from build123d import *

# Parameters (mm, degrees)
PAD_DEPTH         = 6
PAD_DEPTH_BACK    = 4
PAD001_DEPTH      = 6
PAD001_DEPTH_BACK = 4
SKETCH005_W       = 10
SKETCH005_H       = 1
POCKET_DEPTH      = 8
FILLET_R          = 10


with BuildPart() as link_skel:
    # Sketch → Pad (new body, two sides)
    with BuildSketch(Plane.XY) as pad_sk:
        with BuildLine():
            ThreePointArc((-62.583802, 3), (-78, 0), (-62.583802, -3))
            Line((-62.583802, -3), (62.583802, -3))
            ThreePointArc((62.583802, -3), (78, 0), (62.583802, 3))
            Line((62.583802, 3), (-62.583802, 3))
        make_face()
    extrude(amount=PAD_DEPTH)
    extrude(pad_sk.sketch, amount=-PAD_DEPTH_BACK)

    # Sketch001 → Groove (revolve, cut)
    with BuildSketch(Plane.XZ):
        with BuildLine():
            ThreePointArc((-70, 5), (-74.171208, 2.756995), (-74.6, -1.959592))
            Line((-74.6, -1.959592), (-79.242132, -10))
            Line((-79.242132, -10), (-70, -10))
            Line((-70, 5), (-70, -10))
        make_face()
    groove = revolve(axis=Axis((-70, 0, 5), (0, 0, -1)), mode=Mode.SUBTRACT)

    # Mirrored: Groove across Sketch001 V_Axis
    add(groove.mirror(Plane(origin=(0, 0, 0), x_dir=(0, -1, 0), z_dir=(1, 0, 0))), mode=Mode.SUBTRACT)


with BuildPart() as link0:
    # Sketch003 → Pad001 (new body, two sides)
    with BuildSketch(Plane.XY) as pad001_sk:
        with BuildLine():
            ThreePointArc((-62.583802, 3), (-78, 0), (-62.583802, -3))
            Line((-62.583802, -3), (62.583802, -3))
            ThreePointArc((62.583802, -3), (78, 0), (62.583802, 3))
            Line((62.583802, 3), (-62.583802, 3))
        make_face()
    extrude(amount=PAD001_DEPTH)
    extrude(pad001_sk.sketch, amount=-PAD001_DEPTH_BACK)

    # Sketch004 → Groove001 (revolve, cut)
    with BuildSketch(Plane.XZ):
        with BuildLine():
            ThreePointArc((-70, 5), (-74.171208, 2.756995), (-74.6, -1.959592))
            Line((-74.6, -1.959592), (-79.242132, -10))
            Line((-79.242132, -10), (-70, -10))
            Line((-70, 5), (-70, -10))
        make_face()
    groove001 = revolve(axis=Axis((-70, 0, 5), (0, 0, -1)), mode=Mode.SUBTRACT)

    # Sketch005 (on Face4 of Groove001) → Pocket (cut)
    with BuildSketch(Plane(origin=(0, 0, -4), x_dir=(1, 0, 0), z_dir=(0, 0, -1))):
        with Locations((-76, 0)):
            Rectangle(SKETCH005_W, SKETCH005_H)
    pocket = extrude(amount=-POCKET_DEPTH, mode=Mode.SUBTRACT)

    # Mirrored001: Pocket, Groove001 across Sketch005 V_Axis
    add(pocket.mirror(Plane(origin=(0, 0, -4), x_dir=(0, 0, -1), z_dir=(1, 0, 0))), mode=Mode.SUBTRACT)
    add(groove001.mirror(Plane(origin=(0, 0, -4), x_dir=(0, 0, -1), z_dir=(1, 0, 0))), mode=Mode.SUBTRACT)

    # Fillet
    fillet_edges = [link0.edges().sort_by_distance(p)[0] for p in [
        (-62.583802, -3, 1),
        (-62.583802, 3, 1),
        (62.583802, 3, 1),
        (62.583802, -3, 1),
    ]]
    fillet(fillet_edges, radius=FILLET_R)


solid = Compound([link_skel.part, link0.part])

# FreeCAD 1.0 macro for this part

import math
import FreeCAD as App
import Part
import Sketcher

V = App.Vector
Q = App.Units.Quantity


def edges_at(feature, points):
    """Names of the edges that pass closest to the given points."""
    edges = feature.Shape.Edges
    near = lambda p: min(range(len(edges)), key=lambda i: edges[i].distToShape(Part.Vertex(*p))[0])
    return sorted({f"Edge{near(p) + 1}" for p in points})


def add_polygon(sketch, points):
    """Adds a closed chain of lines whose ends are joined by coincident constraints."""
    first, n = sketch.GeometryCount, len(points)
    for a, b in zip(points, points[1:] + points[:1]):
        sketch.addGeometry(Part.LineSegment(App.Vector(*a, 0), App.Vector(*b, 0)), False)
    for i in range(n):
        sketch.addConstraint(Sketcher.Constraint("Coincident", first + i, 2, first + (i + 1) % n, 1))

doc = App.newDocument("Part")
params = doc.addObject("Spreadsheet::Sheet", "Params")
for row, (alias, value) in enumerate([
    ("sketch1_radius", "8 mm"),
    ("pad1_length", "6 mm"),
    ("pad1_length2", "4 mm"),
    ("sketch2_radius", "5 mm"),
    ("sketch2_height", "15 mm"),
    ("groove_angle", "360 deg"),
    ("sketch3_radius", "8 mm"),
    ("pad2_length", "6 mm"),
    ("pad2_length2", "4 mm"),
    ("sketch4_radius", "5 mm"),
    ("sketch4_height", "15 mm"),
    ("groove2_angle", "360 deg"),
    ("sketch5_width", "10 mm"),
    ("sketch5_height", "1 mm"),
    ("pocket1_length", "8 mm"),
    ("fillet_radius", "10 mm"),
], start=1):
    params.set(f"A{row}", alias)
    params.set(f"B{row}", "=" + value)
    params.setAlias(f"B{row}", alias)

body = doc.addObject("PartDesign::Body", "Body")

# Sketch on XY plane
sketch1 = body.newObject("Sketcher::SketchObject", "Sketch")
sketch1.AttachmentSupport = (doc.getObject("XY_Plane"), [""])
sketch1.MapMode = "FlatFace"
sketch1.addGeometry(Part.ArcOfCircle(Part.Circle(V(-70, 0, 0), V(0, 0, 1), 8), math.radians(22), math.radians(338)), False)
sketch1.addGeometry(Part.LineSegment(V(-63, -3, 0), V(63, -3, 0)), False)
sketch1.addGeometry(Part.ArcOfCircle(Part.Circle(V(70, 0, 0), V(0, 0, 1), 8), math.radians(-158), math.radians(158)), False)
sketch1.addGeometry(Part.LineSegment(V(63, 3, 0), V(-63, 3, 0)), False)
sketch1.addConstraint(Sketcher.Constraint("Coincident", 0, 2, 1, 1))
sketch1.addConstraint(Sketcher.Constraint("Coincident", 1, 2, 2, 1))
sketch1.addConstraint(Sketcher.Constraint("Coincident", 2, 2, 3, 1))
sketch1.addConstraint(Sketcher.Constraint("Coincident", 3, 2, 0, 1))
sketch1.addConstraint(Sketcher.Constraint("Horizontal", 1))
sketch1.addConstraint(Sketcher.Constraint("Horizontal", 3))
sketch1.addConstraint(Sketcher.Constraint("Equal", 0, 2))
sketch1.addConstraint(Sketcher.Constraint("Symmetric", 0, 3, 2, 3, -1, 1))
sketch1.addConstraint(Sketcher.Constraint("Symmetric", 1, 2, 2, 2, -1))
sketch1.addConstraint(Sketcher.Constraint("Radius", 0, 8.0))
sketch1.addConstraint(Sketcher.Constraint("DistanceX", 0, 3, -1, 1, 70.0))
sketch1.addConstraint(Sketcher.Constraint("DistanceY", 0, 2, -1, 1, 3.0))
sketch1.setExpression("Constraints[9]", "Params.sketch1_radius")
pad1 = body.newObject("PartDesign::Pad", "Pad")
pad1.Profile = sketch1
pad1.Type = "TwoLengths"
pad1.setExpression("Length", "Params.pad1_length")
pad1.setExpression("Length2", "Params.pad1_length2")

# Sketch on XZ plane
sketch2 = body.newObject("Sketcher::SketchObject", "Sketch001")
sketch2.AttachmentSupport = (doc.getObject("XZ_Plane"), [""])
sketch2.MapMode = "FlatFace"
sketch2.addGeometry(Part.ArcOfCircle(Part.Circle(V(-70, 0, 0), V(0, 0, 1), 5), math.radians(90), math.radians(203)), False)
sketch2.addGeometry(Part.LineSegment(V(-75, -2, 0), V(-79, -10, 0)), False)
sketch2.addGeometry(Part.LineSegment(V(-79, -10, 0), V(-70, -10, 0)), False)
sketch2.addGeometry(Part.LineSegment(V(-70, -10, 0), V(-70, 5, 0)), False)
sketch2.addGeometry(Part.LineSegment(V(-70, 5, 0), V(-70, -10, 0)), True)  # axis
sketch2.addConstraint(Sketcher.Constraint("Coincident", 0, 2, 1, 1))
sketch2.addConstraint(Sketcher.Constraint("Coincident", 1, 2, 2, 1))
sketch2.addConstraint(Sketcher.Constraint("Coincident", 2, 2, 3, 1))
sketch2.addConstraint(Sketcher.Constraint("Coincident", 3, 2, 0, 1))
sketch2.addConstraint(Sketcher.Constraint("Horizontal", 2))
sketch2.addConstraint(Sketcher.Constraint("Vertical", 3))
sketch2.addConstraint(Sketcher.Constraint("Vertical", 4))
sketch2.addConstraint(Sketcher.Constraint("Coincident", 4, 1, 3, 2))
sketch2.addConstraint(Sketcher.Constraint("PointOnObject", 0, 3, -1))
sketch2.addConstraint(Sketcher.Constraint("Horizontal", 1, 2, 4, 2))
sketch2.addConstraint(Sketcher.Constraint("Vertical", 0, 3, 2, 2))
sketch2.addConstraint(Sketcher.Constraint("Radius", 0, 5.0))
sketch2.addConstraint(Sketcher.Constraint("DistanceY", 3, 1, 3, 2, 15.0))
sketch2.addConstraint(Sketcher.Constraint("Angle", 1, Q("-120.000001 deg")))
sketch2.addConstraint(Sketcher.Constraint("DistanceX", 0, 3, -1, 1, 70.0))
sketch2.addConstraint(Sketcher.Constraint("DistanceX", 0, 2, -1, 1, 74.6))
sketch2.setExpression("Constraints[11]", "Params.sketch2_radius")
sketch2.setExpression("Constraints[12]", "Params.sketch2_height")
groove = body.newObject("PartDesign::Groove", "Groove")
groove.Profile = sketch2
groove.ReferenceAxis = (sketch2, ["Axis0"])
groove.setExpression("Angle", "Params.groove_angle")
doc.recompute()

mirrored = body.newObject("PartDesign::Mirrored", "Mirrored")
mirrored.Originals = [groove]
mirrored.MirrorPlane = (doc.getObject("YZ_Plane"), [""])
body.Tip = mirrored
body2 = doc.addObject("PartDesign::Body", "Body001")

# Sketch on XY plane
sketch3 = body2.newObject("Sketcher::SketchObject", "Sketch002")
sketch3.AttachmentSupport = (doc.getObject("XY_Plane001"), [""])
sketch3.MapMode = "FlatFace"
sketch3.addGeometry(Part.ArcOfCircle(Part.Circle(V(-70, 0, 0), V(0, 0, 1), 8), math.radians(22), math.radians(338)), False)
sketch3.addGeometry(Part.LineSegment(V(-63, -3, 0), V(63, -3, 0)), False)
sketch3.addGeometry(Part.ArcOfCircle(Part.Circle(V(70, 0, 0), V(0, 0, 1), 8), math.radians(-158), math.radians(158)), False)
sketch3.addGeometry(Part.LineSegment(V(63, 3, 0), V(-63, 3, 0)), False)
sketch3.addConstraint(Sketcher.Constraint("Coincident", 0, 2, 1, 1))
sketch3.addConstraint(Sketcher.Constraint("Coincident", 1, 2, 2, 1))
sketch3.addConstraint(Sketcher.Constraint("Coincident", 2, 2, 3, 1))
sketch3.addConstraint(Sketcher.Constraint("Coincident", 3, 2, 0, 1))
sketch3.addConstraint(Sketcher.Constraint("Horizontal", 1))
sketch3.addConstraint(Sketcher.Constraint("Horizontal", 3))
sketch3.addConstraint(Sketcher.Constraint("Equal", 0, 2))
sketch3.addConstraint(Sketcher.Constraint("Symmetric", 0, 3, 2, 3, -1, 1))
sketch3.addConstraint(Sketcher.Constraint("Symmetric", 1, 2, 2, 2, -1))
sketch3.addConstraint(Sketcher.Constraint("Radius", 0, 8.0))
sketch3.addConstraint(Sketcher.Constraint("DistanceX", 0, 3, -1, 1, 70.0))
sketch3.addConstraint(Sketcher.Constraint("DistanceY", 0, 2, -1, 1, 3.0))
sketch3.setExpression("Constraints[9]", "Params.sketch3_radius")
pad2 = body2.newObject("PartDesign::Pad", "Pad001")
pad2.Profile = sketch3
pad2.Type = "TwoLengths"
pad2.setExpression("Length", "Params.pad2_length")
pad2.setExpression("Length2", "Params.pad2_length2")

# Sketch on XZ plane
sketch4 = body2.newObject("Sketcher::SketchObject", "Sketch003")
sketch4.AttachmentSupport = (doc.getObject("XZ_Plane001"), [""])
sketch4.MapMode = "FlatFace"
sketch4.addGeometry(Part.ArcOfCircle(Part.Circle(V(-70, 0, 0), V(0, 0, 1), 5), math.radians(90), math.radians(203)), False)
sketch4.addGeometry(Part.LineSegment(V(-75, -2, 0), V(-79, -10, 0)), False)
sketch4.addGeometry(Part.LineSegment(V(-79, -10, 0), V(-70, -10, 0)), False)
sketch4.addGeometry(Part.LineSegment(V(-70, -10, 0), V(-70, 5, 0)), False)
sketch4.addGeometry(Part.LineSegment(V(-70, 5, 0), V(-70, -10, 0)), True)  # axis
sketch4.addConstraint(Sketcher.Constraint("Coincident", 0, 2, 1, 1))
sketch4.addConstraint(Sketcher.Constraint("Coincident", 1, 2, 2, 1))
sketch4.addConstraint(Sketcher.Constraint("Coincident", 2, 2, 3, 1))
sketch4.addConstraint(Sketcher.Constraint("Coincident", 3, 2, 0, 1))
sketch4.addConstraint(Sketcher.Constraint("Horizontal", 2))
sketch4.addConstraint(Sketcher.Constraint("Vertical", 3))
sketch4.addConstraint(Sketcher.Constraint("Vertical", 4))
sketch4.addConstraint(Sketcher.Constraint("Coincident", 4, 1, 3, 2))
sketch4.addConstraint(Sketcher.Constraint("PointOnObject", 0, 3, -1))
sketch4.addConstraint(Sketcher.Constraint("Horizontal", 1, 2, 4, 2))
sketch4.addConstraint(Sketcher.Constraint("Vertical", 0, 3, 2, 2))
sketch4.addConstraint(Sketcher.Constraint("Radius", 0, 5.0))
sketch4.addConstraint(Sketcher.Constraint("DistanceY", 3, 1, 3, 2, 15.0))
sketch4.addConstraint(Sketcher.Constraint("Angle", 1, Q("-120.000001 deg")))
sketch4.addConstraint(Sketcher.Constraint("DistanceX", 0, 3, -1, 1, 70.0))
sketch4.addConstraint(Sketcher.Constraint("DistanceX", 0, 2, -1, 1, 74.6))
sketch4.setExpression("Constraints[11]", "Params.sketch4_radius")
sketch4.setExpression("Constraints[12]", "Params.sketch4_height")
groove2 = body2.newObject("PartDesign::Groove", "Groove001")
groove2.Profile = sketch4
groove2.ReferenceAxis = (sketch4, ["Axis0"])
groove2.setExpression("Angle", "Params.groove2_angle")

# Sketch on XY plane
sketch5 = body2.newObject("Sketcher::SketchObject", "Sketch004")
sketch5.AttachmentSupport = (doc.getObject("XY_Plane001"), [""])
sketch5.MapMode = "FlatFace"
sketch5.AttachmentOffset = App.Placement(V(0, 0, -4), App.Rotation())
add_polygon(sketch5, [(-81, -0.5), (-81, 0.5), (-71, 0.5), (-71, -0.5)])  # lines 0-3
sketch5.addConstraint(Sketcher.Constraint("Vertical", 0))
sketch5.addConstraint(Sketcher.Constraint("Horizontal", 1))
sketch5.addConstraint(Sketcher.Constraint("Vertical", 2))
sketch5.addConstraint(Sketcher.Constraint("Horizontal", 3))
sketch5.addConstraint(Sketcher.Constraint("DistanceX", 1, 1, 1, 2, 10.0))
sketch5.addConstraint(Sketcher.Constraint("DistanceY", 0, 1, 0, 2, 1.0))
sketch5.addConstraint(Sketcher.Constraint("DistanceX", 0, 2, -1, 1, 81.0))
sketch5.addConstraint(Sketcher.Constraint("DistanceY", -1, 1, 0, 2, 0.5))
sketch5.setExpression("Constraints[8]", "Params.sketch5_width")
sketch5.setExpression("Constraints[9]", "Params.sketch5_height")
pocket1 = body2.newObject("PartDesign::Pocket", "Pocket")
pocket1.Profile = sketch5
pocket1.setExpression("Length", "Params.pocket1_length")
pocket1.Reversed = True
doc.recompute()

mirrored2 = body2.newObject("PartDesign::Mirrored", "Mirrored001")
mirrored2.Originals = [pocket1, groove2]
mirrored2.MirrorPlane = (doc.getObject("YZ_Plane001"), [""])
body2.Tip = mirrored2
doc.recompute()

fillet = body2.newObject("PartDesign::Fillet", "Fillet")
fillet.Base = (mirrored2, edges_at(mirrored2, [
    (-62.584, -3, 1),
    (-62.584, 3, 1),
    (62.584, 3, 1),
    (62.584, -3, 1),
]))
fillet.setExpression("Radius", "Params.fillet_radius")

doc.recompute()
